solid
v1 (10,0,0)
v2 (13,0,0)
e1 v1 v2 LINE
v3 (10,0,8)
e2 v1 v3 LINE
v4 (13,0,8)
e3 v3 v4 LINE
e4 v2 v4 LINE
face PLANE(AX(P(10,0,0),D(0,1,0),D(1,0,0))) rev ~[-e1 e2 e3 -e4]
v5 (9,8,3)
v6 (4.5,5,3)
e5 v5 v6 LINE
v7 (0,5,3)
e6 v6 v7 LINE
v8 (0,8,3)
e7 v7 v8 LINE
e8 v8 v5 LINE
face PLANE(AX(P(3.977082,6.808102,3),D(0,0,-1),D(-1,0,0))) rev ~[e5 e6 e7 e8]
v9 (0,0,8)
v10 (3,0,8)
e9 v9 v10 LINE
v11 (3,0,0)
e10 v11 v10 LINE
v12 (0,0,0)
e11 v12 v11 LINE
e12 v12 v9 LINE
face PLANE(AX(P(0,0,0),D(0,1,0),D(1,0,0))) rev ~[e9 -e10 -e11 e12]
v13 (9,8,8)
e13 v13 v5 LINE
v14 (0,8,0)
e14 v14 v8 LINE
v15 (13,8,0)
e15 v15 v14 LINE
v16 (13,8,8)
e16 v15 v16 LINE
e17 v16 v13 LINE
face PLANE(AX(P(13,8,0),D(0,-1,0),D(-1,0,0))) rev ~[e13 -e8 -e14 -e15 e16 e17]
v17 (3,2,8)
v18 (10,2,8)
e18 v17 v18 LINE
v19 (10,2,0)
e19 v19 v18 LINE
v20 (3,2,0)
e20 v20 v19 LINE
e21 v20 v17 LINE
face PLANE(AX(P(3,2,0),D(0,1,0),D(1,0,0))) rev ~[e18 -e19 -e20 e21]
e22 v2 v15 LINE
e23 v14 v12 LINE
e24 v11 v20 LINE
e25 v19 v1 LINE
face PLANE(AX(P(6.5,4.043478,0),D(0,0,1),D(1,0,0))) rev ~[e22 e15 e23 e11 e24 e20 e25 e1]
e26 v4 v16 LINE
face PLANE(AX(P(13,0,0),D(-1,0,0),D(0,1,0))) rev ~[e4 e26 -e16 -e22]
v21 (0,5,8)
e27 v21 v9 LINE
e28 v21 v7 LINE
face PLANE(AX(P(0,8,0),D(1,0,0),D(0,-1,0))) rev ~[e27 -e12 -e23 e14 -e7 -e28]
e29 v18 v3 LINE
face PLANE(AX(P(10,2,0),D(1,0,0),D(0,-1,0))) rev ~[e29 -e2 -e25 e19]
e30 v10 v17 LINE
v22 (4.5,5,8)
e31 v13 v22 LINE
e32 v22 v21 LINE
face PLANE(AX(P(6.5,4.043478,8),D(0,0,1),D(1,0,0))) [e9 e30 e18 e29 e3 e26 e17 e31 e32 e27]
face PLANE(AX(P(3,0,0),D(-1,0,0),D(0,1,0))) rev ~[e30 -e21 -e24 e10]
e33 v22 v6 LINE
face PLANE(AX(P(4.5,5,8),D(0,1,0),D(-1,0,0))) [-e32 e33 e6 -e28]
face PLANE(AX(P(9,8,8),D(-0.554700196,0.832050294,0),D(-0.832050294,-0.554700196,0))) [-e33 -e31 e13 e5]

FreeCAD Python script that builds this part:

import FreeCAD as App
import Part
import Sketcher

V = App.Vector


def add_polygon(sketch, points):
    """Adds a closed chain of lines whose ends are joined by coincident constraints."""
    first, n = sketch.GeometryCount, len(points)
    for a, b in zip(points, points[1:] + points[:1]):
        sketch.addGeometry(Part.LineSegment(App.Vector(*a, 0), App.Vector(*b, 0)), False)
    for i in range(n):
        sketch.addConstraint(Sketcher.Constraint("Coincident", first + i, 2, first + (i + 1) % n, 1))

doc = App.newDocument("Part")
body = doc.addObject("PartDesign::Body", "Body")

sketch1 = body.newObject("Sketcher::SketchObject", "Sketch")
sketch1.AttachmentSupport = (doc.getObject("XY_Plane"), [""])
sketch1.MapMode = "FlatFace"
add_polygon(sketch1, [(0, 8), (0, 0), (3, 0), (3, 2), (10, 2), (10, 0), (13, 0), (13, 8)])
sketch1.addConstraint([
    Sketcher.Constraint("Vertical", 0),
    Sketcher.Constraint("Horizontal", 1),
    Sketcher.Constraint("Vertical", 2),
    Sketcher.Constraint("Horizontal", 3),
    Sketcher.Constraint("Vertical", 4),
    Sketcher.Constraint("Horizontal", 5),
    Sketcher.Constraint("Vertical", 6),
    Sketcher.Constraint("Horizontal", 7),
    Sketcher.Constraint("Coincident", 0, 2, -1, 1),
    Sketcher.Constraint("PointOnObject", 4, 2, -1),
    Sketcher.Constraint("Equal", 1, 5),
    Sketcher.Constraint("DistanceX", 1, 1, 1, 2, 3.0),
    Sketcher.Constraint("DistanceX", 3, 1, 3, 2, 7.0),
    Sketcher.Constraint("DistanceY", 0, 2, 0, 1, 8.0),
    Sketcher.Constraint("DistanceY", 2, 1, 2, 2, 2.0),
])
pad1 = body.newObject("PartDesign::Pad", "Pad")
pad1.Profile = sketch1
pad1.Length = 8

sketch2 = body.newObject("Sketcher::SketchObject", "Sketch001")
sketch2.AttachmentSupport = (doc.getObject("XY_Plane"), [""])
sketch2.MapMode = "FlatFace"
sketch2.AttachmentOffset = App.Placement(V(0, 0, 8), App.Rotation())
add_polygon(sketch2, [(4.5, 5), (9, 8), (0, 8), (0, 5)])
sketch2.addConstraint([
    Sketcher.Constraint("Horizontal", 1),
    Sketcher.Constraint("Vertical", 2),
    Sketcher.Constraint("Horizontal", 3),
    Sketcher.Constraint("PointOnObject", 1, 2, -2),
    Sketcher.Constraint("DistanceX", 1, 2, 1, 1, 9.0),
    Sketcher.Constraint("DistanceY", 2, 2, 2, 1, 3.0),
    Sketcher.Constraint("DistanceX", 3, 1, 3, 2, 4.5),
    Sketcher.Constraint("DistanceY", -1, 1, 0, 2, 8.0),
])
pocket1 = body.newObject("PartDesign::Pocket", "Pocket")
pocket1.Profile = sketch2
pocket1.Length = 5

doc.recompute()
